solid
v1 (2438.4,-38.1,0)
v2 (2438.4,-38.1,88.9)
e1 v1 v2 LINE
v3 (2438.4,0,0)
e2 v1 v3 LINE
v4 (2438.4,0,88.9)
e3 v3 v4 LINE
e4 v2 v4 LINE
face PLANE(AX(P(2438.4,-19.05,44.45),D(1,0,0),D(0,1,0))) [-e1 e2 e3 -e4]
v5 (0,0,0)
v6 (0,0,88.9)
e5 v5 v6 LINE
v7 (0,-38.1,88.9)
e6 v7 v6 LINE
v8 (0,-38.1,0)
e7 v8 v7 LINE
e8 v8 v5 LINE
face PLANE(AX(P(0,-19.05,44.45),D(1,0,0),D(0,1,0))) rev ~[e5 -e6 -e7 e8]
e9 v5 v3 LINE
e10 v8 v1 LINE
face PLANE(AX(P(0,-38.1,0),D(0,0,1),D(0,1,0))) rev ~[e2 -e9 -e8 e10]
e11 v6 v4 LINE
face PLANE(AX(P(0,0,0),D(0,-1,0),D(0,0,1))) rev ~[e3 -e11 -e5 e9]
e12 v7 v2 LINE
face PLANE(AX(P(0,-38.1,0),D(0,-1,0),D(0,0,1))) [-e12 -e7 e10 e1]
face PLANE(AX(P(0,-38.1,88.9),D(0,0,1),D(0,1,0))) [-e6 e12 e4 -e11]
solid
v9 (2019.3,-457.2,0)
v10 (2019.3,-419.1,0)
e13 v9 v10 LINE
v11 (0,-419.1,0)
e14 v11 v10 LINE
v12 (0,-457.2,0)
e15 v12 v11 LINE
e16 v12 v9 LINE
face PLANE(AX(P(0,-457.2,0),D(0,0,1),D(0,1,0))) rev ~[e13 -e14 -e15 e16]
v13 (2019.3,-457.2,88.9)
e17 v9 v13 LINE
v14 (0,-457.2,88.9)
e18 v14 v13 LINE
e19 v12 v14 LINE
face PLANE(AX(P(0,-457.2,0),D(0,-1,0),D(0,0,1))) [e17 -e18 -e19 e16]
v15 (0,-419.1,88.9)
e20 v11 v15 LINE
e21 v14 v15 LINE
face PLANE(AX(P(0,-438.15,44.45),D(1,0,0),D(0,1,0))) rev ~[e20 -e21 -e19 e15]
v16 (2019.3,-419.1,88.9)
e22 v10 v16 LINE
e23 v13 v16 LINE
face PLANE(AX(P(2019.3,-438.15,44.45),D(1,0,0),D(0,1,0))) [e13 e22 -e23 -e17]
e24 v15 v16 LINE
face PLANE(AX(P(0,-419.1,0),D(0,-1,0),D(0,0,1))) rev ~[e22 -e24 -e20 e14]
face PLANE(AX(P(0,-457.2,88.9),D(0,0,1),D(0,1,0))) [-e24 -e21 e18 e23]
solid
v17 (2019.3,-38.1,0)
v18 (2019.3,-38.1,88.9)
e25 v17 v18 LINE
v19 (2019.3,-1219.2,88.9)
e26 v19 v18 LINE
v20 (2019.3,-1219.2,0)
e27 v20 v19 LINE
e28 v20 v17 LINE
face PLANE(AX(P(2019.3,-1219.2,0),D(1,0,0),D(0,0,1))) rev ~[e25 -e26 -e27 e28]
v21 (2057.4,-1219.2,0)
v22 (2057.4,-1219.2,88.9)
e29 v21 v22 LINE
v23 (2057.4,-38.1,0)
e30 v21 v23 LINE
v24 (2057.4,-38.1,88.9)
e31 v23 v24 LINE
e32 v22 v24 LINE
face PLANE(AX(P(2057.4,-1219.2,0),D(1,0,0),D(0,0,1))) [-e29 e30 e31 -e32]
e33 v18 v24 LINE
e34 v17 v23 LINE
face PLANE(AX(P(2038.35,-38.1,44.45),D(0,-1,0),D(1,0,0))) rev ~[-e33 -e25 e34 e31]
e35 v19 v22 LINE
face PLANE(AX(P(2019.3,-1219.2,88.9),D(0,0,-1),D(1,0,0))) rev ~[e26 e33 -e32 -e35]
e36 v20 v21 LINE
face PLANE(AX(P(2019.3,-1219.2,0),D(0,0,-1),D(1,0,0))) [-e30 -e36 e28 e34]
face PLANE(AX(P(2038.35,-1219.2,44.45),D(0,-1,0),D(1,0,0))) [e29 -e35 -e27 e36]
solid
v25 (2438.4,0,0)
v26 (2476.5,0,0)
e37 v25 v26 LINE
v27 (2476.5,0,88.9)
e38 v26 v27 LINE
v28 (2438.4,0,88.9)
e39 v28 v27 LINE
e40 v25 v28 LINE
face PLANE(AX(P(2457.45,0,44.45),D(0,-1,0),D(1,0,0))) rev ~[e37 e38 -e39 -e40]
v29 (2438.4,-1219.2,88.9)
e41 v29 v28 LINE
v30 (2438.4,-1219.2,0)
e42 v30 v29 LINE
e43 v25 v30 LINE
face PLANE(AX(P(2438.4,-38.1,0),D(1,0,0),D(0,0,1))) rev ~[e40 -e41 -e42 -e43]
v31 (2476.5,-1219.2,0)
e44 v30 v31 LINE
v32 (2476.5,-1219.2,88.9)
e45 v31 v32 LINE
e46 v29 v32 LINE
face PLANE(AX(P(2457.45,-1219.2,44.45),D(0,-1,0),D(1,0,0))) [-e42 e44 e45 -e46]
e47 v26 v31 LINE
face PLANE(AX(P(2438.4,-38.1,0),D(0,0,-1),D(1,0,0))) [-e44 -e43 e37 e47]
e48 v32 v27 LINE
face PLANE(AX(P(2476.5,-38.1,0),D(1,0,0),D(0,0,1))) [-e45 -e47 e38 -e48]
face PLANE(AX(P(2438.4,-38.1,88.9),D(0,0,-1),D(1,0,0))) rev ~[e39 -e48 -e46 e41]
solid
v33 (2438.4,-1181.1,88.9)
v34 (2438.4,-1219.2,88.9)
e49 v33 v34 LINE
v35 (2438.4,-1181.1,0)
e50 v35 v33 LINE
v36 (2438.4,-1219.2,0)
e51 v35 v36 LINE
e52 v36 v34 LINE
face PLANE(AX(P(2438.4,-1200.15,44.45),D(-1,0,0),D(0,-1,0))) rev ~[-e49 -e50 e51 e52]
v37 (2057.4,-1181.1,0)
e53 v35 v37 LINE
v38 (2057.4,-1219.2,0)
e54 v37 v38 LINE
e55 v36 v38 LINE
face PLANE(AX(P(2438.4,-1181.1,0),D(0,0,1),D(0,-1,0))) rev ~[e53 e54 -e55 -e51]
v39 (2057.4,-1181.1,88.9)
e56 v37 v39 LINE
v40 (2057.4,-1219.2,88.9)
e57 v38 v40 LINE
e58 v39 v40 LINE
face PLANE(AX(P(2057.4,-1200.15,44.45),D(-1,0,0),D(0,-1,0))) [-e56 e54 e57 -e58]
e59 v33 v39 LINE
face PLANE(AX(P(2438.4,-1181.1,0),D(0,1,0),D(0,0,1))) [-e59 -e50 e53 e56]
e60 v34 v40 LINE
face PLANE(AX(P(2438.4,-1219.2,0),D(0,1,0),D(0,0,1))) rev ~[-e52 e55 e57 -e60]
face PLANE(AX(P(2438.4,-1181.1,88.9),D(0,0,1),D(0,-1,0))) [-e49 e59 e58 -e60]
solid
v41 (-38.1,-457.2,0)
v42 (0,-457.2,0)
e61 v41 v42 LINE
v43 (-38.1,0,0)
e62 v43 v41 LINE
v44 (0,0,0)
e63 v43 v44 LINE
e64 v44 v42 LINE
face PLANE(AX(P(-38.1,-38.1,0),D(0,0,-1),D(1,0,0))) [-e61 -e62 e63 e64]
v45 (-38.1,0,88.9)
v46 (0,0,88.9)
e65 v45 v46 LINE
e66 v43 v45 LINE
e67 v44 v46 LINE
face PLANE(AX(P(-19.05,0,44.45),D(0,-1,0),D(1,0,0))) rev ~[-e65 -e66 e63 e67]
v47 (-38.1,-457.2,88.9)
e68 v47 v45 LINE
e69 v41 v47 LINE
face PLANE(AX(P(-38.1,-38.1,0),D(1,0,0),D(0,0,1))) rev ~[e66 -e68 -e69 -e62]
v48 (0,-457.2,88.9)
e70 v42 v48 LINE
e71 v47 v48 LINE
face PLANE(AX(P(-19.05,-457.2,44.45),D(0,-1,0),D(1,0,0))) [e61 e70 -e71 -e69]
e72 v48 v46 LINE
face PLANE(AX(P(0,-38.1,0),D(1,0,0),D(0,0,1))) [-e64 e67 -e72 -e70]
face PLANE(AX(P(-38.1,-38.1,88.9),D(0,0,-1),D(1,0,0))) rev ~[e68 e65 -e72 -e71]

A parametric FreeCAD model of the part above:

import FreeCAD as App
import Part
import Sketcher
Q = App.Units.Quantity


def add_polygon(sketch, points):
    """Adds a closed chain of lines whose ends are joined by coincident constraints."""
    first, n = sketch.GeometryCount, len(points)
    for a, b in zip(points, points[1:] + points[:1]):
        sketch.addGeometry(Part.LineSegment(App.Vector(*a, 0), App.Vector(*b, 0)), False)
    for i in range(n):
        sketch.addConstraint(Sketcher.Constraint("Coincident", first + i, 2, first + (i + 1) % n, 1))

doc = App.newDocument("Part")
body = doc.addObject("PartDesign::Body", "Body")

# Sketch on YZ plane
sketch1 = body.newObject("Sketcher::SketchObject", "Sketch")
sketch1.AttachmentSupport = (doc.getObject("YZ_Plane"), [""])
sketch1.MapMode = "FlatFace"
add_polygon(sketch1, [(-38, 89), (-38, 0), (0, 0), (0, 89)])  # lines 0-3
sketch1.addConstraint([
    Sketcher.Constraint("Vertical", 0),
    Sketcher.Constraint("Horizontal", 1),
    Sketcher.Constraint("Vertical", 2),
    Sketcher.Constraint("Horizontal", 3),
    Sketcher.Constraint("Coincident", 1, 2, -1, 1),
    Sketcher.Constraint("DistanceX", 1, 1, 1, 2, Q("1.5 in")),
    Sketcher.Constraint("DistanceY", 0, 2, 0, 1, Q("3.5 in")),
])
pad1 = body.newObject("PartDesign::Pad", "Pad")
pad1.Profile = sketch1
pad1.Length = Q("96 in")
body2 = doc.addObject("PartDesign::Body", "Body001")

# Sketch on XZ plane
sketch2 = body2.newObject("Sketcher::SketchObject", "Sketch001")
sketch2.AttachmentSupport = (doc.getObject("XZ_Plane001"), [""])
sketch2.MapMode = "FlatFace"
sketch2.AttachmentOffset = App.Placement(App.Vector(0, 0, 1.5 * 25.4), App.Rotation())
add_polygon(sketch2, [(-38, 89), (-38, 0), (0, 0), (0, 89)])  # lines 0-3
sketch2.addConstraint([
    Sketcher.Constraint("Vertical", 0),
    Sketcher.Constraint("Horizontal", 1),
    Sketcher.Constraint("Vertical", 2),
    Sketcher.Constraint("Horizontal", 3),
    Sketcher.Constraint("Coincident", 1, 2, -1, 1),
    Sketcher.Constraint("DistanceX", 1, 1, 1, 2, Q("1.5 in")),
    Sketcher.Constraint("DistanceY", 0, 2, 0, 1, Q("3.5 in")),
])
pad2 = body2.newObject("PartDesign::Pad", "Pad001")
pad2.Profile = sketch2
pad2.Type = "TwoLengths"
pad2.Length = Q("16.5 in")
pad2.Length2 = Q("1.5 in")
body3 = doc.addObject("PartDesign::Body", "Body002")

# Sketch on YZ plane
sketch3 = body3.newObject("Sketcher::SketchObject", "Sketch002")
sketch3.AttachmentSupport = (doc.getObject("YZ_Plane002"), [""])
sketch3.MapMode = "FlatFace"
add_polygon(sketch3, [(-457, 89), (-457, 0), (-419, 0), (-419, 89)])  # lines 0-3
sketch3.addConstraint([
    Sketcher.Constraint("Vertical", 0),
    Sketcher.Constraint("Horizontal", 1),
    Sketcher.Constraint("Vertical", 2),
    Sketcher.Constraint("Horizontal", 3),
    Sketcher.Constraint("PointOnObject", 0, 2, -1),
    Sketcher.Constraint("DistanceX", 1, 1, 1, 2, Q("1.5 in")),
    Sketcher.Constraint("DistanceY", 0, 2, 0, 1, Q("3.5 in")),
    Sketcher.Constraint("DistanceX", 0, 2, -1, 1, Q("18 in")),
])
pad3 = body3.newObject("PartDesign::Pad", "Pad002")
pad3.Profile = sketch3
pad3.Length = Q("79.5 in")
body4 = doc.addObject("PartDesign::Body", "Body003")

# Sketch on XZ plane
sketch4 = body4.newObject("Sketcher::SketchObject", "Sketch003")
sketch4.AttachmentSupport = (doc.getObject("XZ_Plane003"), [""])
sketch4.MapMode = "FlatFace"
sketch4.AttachmentOffset = App.Placement(App.Vector(0, 0, 1.5 * 25.4), App.Rotation())
add_polygon(sketch4, [(2438, 89), (2438, 0), (2476, 0), (2476, 89)])  # lines 0-3
sketch4.addConstraint([
    Sketcher.Constraint("Vertical", 0),
    Sketcher.Constraint("Horizontal", 1),
    Sketcher.Constraint("Vertical", 2),
    Sketcher.Constraint("Horizontal", 3),
    Sketcher.Constraint("PointOnObject", 0, 2, -1),
    Sketcher.Constraint("DistanceX", 1, 1, 1, 2, Q("1.5 in")),
    Sketcher.Constraint("DistanceY", 0, 2, 0, 1, Q("3.5 in")),
    Sketcher.Constraint("DistanceX", -1, 1, 0, 2, Q("96 in")),
])
pad4 = body4.newObject("PartDesign::Pad", "Pad003")
pad4.Profile = sketch4
pad4.Type = "TwoLengths"
pad4.Length = Q("46.5 in")
pad4.Length2 = Q("1.5 in")
body5 = doc.addObject("PartDesign::Body", "Body004")

# Sketch on YZ plane
sketch5 = body5.newObject("Sketcher::SketchObject", "Sketch004")
sketch5.AttachmentSupport = (doc.getObject("YZ_Plane004"), [""])
sketch5.MapMode = "FlatFace"
sketch5.AttachmentOffset = App.Placement(App.Vector(0, 0, 96 * 25.4), App.Rotation())
add_polygon(sketch5, [(-1181, 89), (-1181, 0), (-1219, 0), (-1219, 89)])  # lines 0-3
sketch5.addConstraint([
    Sketcher.Constraint("Vertical", 0),
    Sketcher.Constraint("Horizontal", 1),
    Sketcher.Constraint("Vertical", 2),
    Sketcher.Constraint("Horizontal", 3),
    Sketcher.Constraint("PointOnObject", 0, 2, -1),
    Sketcher.Constraint("DistanceX", 1, 2, 1, 1, Q("1.5 in")),
    Sketcher.Constraint("DistanceY", 0, 2, 0, 1, Q("3.5 in")),
    Sketcher.Constraint("DistanceX", 1, 2, -1, 1, Q("48 in")),
])
pad5 = body5.newObject("PartDesign::Pad", "Pad004")
pad5.Profile = sketch5
pad5.Length = Q("15 in")
pad5.Reversed = True
body6 = doc.addObject("PartDesign::Body", "Body005")

# Sketch on XZ plane
sketch6 = body6.newObject("Sketcher::SketchObject", "Sketch005")
sketch6.AttachmentSupport = (doc.getObject("XZ_Plane005"), [""])
sketch6.MapMode = "FlatFace"
sketch6.AttachmentOffset = App.Placement(App.Vector(0, 0, 48 * 25.4), App.Rotation())
add_polygon(sketch6, [(2019, 89), (2019, 0), (2057, 0), (2057, 89)])  # lines 0-3
sketch6.addConstraint([
    Sketcher.Constraint("Vertical", 0),
    Sketcher.Constraint("Horizontal", 1),
    Sketcher.Constraint("Vertical", 2),
    Sketcher.Constraint("Horizontal", 3),
    Sketcher.Constraint("PointOnObject", 0, 2, -1),
    Sketcher.Constraint("DistanceX", 1, 1, 1, 2, Q("1.5 in")),
    Sketcher.Constraint("DistanceY", 0, 2, 0, 1, Q("3.5 in")),
    Sketcher.Constraint("DistanceX", -1, 1, 1, 2, Q("81 in")),
])
pad6 = body6.newObject("PartDesign::Pad", "Pad005")
pad6.Profile = sketch6
pad6.Length = Q("46.5 in")
pad6.Reversed = True

doc.recompute()
